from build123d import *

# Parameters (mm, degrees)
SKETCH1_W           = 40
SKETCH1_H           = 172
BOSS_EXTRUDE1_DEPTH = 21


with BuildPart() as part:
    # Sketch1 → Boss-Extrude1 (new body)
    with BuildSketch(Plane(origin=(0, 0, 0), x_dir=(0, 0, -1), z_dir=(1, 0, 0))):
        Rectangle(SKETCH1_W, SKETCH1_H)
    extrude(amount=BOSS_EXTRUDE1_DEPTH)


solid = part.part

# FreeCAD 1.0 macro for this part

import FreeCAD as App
import Part
import Sketcher

V = App.Vector

doc = App.newDocument("Part")
body = doc.addObject("PartDesign::Body", "Body")

# Sketch on YZ plane
sketch1 = body.newObject("Sketcher::SketchObject", "Sketch")
sketch1.AttachmentSupport = (doc.getObject("YZ_Plane"), [""])
sketch1.MapMode = "FlatFace"
sketch1.addGeometry([
    Part.LineSegment(V(86, 20, 0), V(-86, 20, 0)),
    Part.LineSegment(V(-86, 20, 0), V(-86, -20, 0)),
    Part.LineSegment(V(-86, -20, 0), V(86, -20, 0)),
    Part.LineSegment(V(86, -20, 0), V(86, 20, 0)),
], False)
sketch1.addConstraint([
    Sketcher.Constraint("Coincident", 0, 2, 1, 1),
    Sketcher.Constraint("Coincident", 1, 2, 2, 1),
    Sketcher.Constraint("Coincident", 2, 2, 3, 1),
    Sketcher.Constraint("Coincident", 3, 2, 0, 1),
    Sketcher.Constraint("Horizontal", 0),
    Sketcher.Constraint("Vertical", 1),
    Sketcher.Constraint("Horizontal", 2),
    Sketcher.Constraint("Vertical", 3),
    Sketcher.Constraint("Symmetric", 0, 2, 2, 2, -1, 1),
    Sketcher.Constraint("DistanceX", 0, 2, 0, 1, 172.0),
    Sketcher.Constraint("DistanceY", 1, 2, 1, 1, 40.0),
])
pad1 = body.newObject("PartDesign::Pad", "Pad")
pad1.Profile = sketch1
pad1.Length = 21

doc.recompute()
